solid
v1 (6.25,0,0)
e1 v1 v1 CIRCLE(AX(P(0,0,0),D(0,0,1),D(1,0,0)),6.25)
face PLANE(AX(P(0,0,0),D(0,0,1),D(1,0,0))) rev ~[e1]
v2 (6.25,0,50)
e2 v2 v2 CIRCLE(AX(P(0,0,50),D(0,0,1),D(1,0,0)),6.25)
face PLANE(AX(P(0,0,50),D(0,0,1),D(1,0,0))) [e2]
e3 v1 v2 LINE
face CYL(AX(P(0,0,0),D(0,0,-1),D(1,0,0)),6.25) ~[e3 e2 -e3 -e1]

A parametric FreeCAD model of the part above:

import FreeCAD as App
import Part
import Sketcher

V = App.Vector

doc = App.newDocument("Part")
params = doc.addObject("Spreadsheet::Sheet", "Params")
for row, (alias, value) in enumerate([
    ("sketch1_diameter", "12.5 mm"),
    ("pad1_length", "50 mm"),
], start=1):
    params.set(f"A{row}", alias)
    params.set(f"B{row}", "=" + value)
    params.setAlias(f"B{row}", alias)

body = doc.addObject("PartDesign::Body", "Body")

# Sketch on XY plane
sketch1 = doc.addObject("Sketcher::SketchObject", "Sketch")
body.addObject(sketch1)
sketch1.AttachmentSupport = (doc.XY_Plane, [""])
sketch1.MapMode = "FlatFace"
sketch1.addGeometry(Part.Circle(V(0, 0, 0), V(0, 0, 1), 6), False)
sketch1.addConstraint([
    Sketcher.Constraint("Coincident", 0, 3, -1, 1),
    Sketcher.Constraint("Diameter", 0, 12.5),
])
sketch1.setExpression("Constraints[1]", "Params.sketch1_diameter")
pad1 = doc.addObject("PartDesign::Pad", "Pad")
body.addObject(pad1)
pad1.Profile = sketch1
pad1.setExpression("Length", "Params.pad1_length")

doc.recompute()
